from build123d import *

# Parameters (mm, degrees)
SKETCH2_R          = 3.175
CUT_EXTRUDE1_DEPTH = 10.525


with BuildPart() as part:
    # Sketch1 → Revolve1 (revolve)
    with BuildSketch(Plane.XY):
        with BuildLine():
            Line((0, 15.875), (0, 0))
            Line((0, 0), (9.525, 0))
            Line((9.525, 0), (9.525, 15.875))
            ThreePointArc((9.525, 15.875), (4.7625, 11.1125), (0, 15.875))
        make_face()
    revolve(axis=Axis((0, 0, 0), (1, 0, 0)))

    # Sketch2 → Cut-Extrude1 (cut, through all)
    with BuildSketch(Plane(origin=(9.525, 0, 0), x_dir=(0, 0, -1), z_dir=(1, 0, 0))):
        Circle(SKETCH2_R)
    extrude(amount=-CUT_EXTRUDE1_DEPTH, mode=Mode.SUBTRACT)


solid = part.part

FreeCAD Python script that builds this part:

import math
import FreeCAD as App
import Part
import Sketcher
from FreeCAD import Vector
Q = App.Units.Quantity

doc = App.newDocument("Part")
body = doc.addObject("PartDesign::Body", "Body")

# Sketch on XY plane
sketch1 = body.newObject("Sketcher::SketchObject", "Sketch")
sketch1.AttachmentSupport = (doc.getObject("XY_Plane"), [""])
sketch1.MapMode = "FlatFace"
sketch1.addGeometry([
    Part.LineSegment(Vector(0, 15.875, 0), Vector(0, 0, 0)),
    Part.LineSegment(Vector(0, 0, 0), Vector(9.525, 0, 0)),
    Part.LineSegment(Vector(9.525, 0, 0), Vector(9.525, 15.875, 0)),
    Part.ArcOfCircle(Part.Circle(Vector(4.7625, 15.875, 0), Vector(0, 0, 1), 4.7625), math.radians(180), math.radians(360)),
], False)
sketch1.addConstraint([
    Sketcher.Constraint("Coincident", 0, 2, 1, 1),
    Sketcher.Constraint("Coincident", 1, 2, 2, 1),
    Sketcher.Constraint("Tangent", 2, 2, 3, 2),
    Sketcher.Constraint("Tangent", 3, 1, 0, 1),
    Sketcher.Constraint("Vertical", 0),
    Sketcher.Constraint("Horizontal", 1),
    Sketcher.Constraint("Vertical", 2),
    Sketcher.Constraint("Coincident", 0, 2, -1, 1),
    Sketcher.Constraint("Radius", 3, Q("0.1875 in")),
    Sketcher.Constraint("DistanceY", 0, 2, 0, 1, Q("0.625 in")),
])
revolution = body.newObject("PartDesign::Revolution", "Revolution")
revolution.Profile = sketch1
revolution.ReferenceAxis = (sketch1, ["H_Axis"])
revolution.Angle = 360

# Sketch on YZ plane
sketch2 = body.newObject("Sketcher::SketchObject", "Sketch001")
sketch2.AttachmentSupport = (doc.getObject("YZ_Plane"), [""])
sketch2.MapMode = "FlatFace"
sketch2.AttachmentOffset = App.Placement(Vector(0, 0, 0.375 * 25.4), App.Rotation())
sketch2.addGeometry(Part.Circle(Vector(0, 0, 0), Vector(0, 0, 1), 3.175), False)
sketch2.addConstraint([
    Sketcher.Constraint("Coincident", 0, 3, -1, 1),
    Sketcher.Constraint("Diameter", 0, Q("0.25 in")),
])
pocket1 = body.newObject("PartDesign::Pocket", "Pocket")
pocket1.Profile = sketch2
pocket1.Type = "ThroughAll"

doc.recompute()
